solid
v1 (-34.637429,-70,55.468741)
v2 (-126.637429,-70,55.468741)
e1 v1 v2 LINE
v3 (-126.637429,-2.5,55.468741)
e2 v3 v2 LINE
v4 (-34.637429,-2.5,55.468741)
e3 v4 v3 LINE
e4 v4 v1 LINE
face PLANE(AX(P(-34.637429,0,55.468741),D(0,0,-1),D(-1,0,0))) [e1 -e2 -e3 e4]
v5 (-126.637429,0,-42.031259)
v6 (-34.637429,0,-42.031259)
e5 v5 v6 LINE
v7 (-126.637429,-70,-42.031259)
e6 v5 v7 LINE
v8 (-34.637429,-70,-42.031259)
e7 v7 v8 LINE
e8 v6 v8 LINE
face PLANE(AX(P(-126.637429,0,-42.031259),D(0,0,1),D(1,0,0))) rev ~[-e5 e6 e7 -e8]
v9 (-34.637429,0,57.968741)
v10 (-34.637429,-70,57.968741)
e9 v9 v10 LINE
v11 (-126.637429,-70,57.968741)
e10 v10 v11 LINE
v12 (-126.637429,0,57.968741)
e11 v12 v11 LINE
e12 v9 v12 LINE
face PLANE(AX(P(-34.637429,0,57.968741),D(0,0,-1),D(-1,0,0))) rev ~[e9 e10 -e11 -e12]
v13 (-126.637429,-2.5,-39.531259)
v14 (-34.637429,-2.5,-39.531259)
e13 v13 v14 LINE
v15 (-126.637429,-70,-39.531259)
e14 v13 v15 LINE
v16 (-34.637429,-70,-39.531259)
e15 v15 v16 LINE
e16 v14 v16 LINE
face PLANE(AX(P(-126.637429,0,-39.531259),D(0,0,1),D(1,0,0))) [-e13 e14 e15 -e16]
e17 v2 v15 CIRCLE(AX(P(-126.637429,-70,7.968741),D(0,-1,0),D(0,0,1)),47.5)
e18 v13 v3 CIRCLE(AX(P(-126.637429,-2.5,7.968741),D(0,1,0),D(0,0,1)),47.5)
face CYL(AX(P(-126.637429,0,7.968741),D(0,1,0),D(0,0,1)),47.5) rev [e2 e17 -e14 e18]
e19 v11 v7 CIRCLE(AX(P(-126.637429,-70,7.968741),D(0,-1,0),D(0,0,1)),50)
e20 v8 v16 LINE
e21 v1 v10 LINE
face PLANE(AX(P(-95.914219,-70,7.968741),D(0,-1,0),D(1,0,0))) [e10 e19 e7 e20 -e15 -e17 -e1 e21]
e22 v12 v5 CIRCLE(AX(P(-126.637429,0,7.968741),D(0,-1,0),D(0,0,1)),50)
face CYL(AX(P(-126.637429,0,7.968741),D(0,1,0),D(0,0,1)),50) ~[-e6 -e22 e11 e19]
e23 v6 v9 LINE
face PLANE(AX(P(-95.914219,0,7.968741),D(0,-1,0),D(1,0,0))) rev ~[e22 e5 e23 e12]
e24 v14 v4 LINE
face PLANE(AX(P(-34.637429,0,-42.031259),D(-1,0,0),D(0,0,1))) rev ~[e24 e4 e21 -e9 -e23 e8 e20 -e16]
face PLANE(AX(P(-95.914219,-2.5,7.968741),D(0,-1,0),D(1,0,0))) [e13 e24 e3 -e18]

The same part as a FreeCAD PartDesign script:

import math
import FreeCAD as App
import Part
import Sketcher
Q = App.Units.Quantity


def faces_at(feature, points):
    """Names of the faces that lie closest to the given points."""
    faces = feature.Shape.Faces
    near = lambda p: min(range(len(faces)), key=lambda i: faces[i].distToShape(Part.Vertex(*p))[0])
    return sorted({f"Face{near(p) + 1}" for p in points})

doc = App.newDocument("Part")
body = doc.addObject("PartDesign::Body", "Body")

sketch1 = body.newObject("Sketcher::SketchObject", "Sketch")
sketch1.AttachmentSupport = (doc.getObject("XZ_Plane"), [""])
sketch1.MapMode = "FlatFace"
sketch1.addGeometry([
    Part.LineSegment(App.Vector(-35, 58, 0), App.Vector(-127, 58, 0)),
    Part.ArcOfCircle(Part.Circle(App.Vector(-127, 8, 0), App.Vector(0, 0, 1), 50), math.radians(90), math.radians(270)),
    Part.LineSegment(App.Vector(-127, -42, 0), App.Vector(-35, -42, 0)),
    Part.LineSegment(App.Vector(-35, -42, 0), App.Vector(-35, 58, 0)),
], False)
sketch1.addConstraint([
    Sketcher.Constraint("Tangent", 0, 2, 1, 1),
    Sketcher.Constraint("Tangent", 1, 2, 2, 1),
    Sketcher.Constraint("Coincident", 2, 2, 3, 1),
    Sketcher.Constraint("Coincident", 3, 2, 0, 1),
    Sketcher.Constraint("Horizontal", 0),
    Sketcher.Constraint("Horizontal", 2),
    Sketcher.Constraint("Vertical", 3),
    Sketcher.Constraint("Radius", 1, Q("50 mm")),
    Sketcher.Constraint("DistanceX", 0, 2, 0, 1, Q("92 mm")),
    Sketcher.Constraint("DistanceX", 1, 3, -1, 1, Q("126.637429 mm")),
    Sketcher.Constraint("DistanceY", -1, 1, 1, 3, Q("7.968741 mm")),
])
pad1 = body.newObject("PartDesign::Pad", "Pad")
pad1.Profile = sketch1
pad1.Length = 70
doc.recompute()

thickness = body.newObject("PartDesign::Thickness", "Thickness")
thickness.Base = (pad1, faces_at(pad1, [(-34.637, -35, 7.969), (-105.637, -70, 7.969)]))
thickness.Value = 2.5
thickness.Reversed = True
thickness.Join = "Arc"

doc.recompute()
